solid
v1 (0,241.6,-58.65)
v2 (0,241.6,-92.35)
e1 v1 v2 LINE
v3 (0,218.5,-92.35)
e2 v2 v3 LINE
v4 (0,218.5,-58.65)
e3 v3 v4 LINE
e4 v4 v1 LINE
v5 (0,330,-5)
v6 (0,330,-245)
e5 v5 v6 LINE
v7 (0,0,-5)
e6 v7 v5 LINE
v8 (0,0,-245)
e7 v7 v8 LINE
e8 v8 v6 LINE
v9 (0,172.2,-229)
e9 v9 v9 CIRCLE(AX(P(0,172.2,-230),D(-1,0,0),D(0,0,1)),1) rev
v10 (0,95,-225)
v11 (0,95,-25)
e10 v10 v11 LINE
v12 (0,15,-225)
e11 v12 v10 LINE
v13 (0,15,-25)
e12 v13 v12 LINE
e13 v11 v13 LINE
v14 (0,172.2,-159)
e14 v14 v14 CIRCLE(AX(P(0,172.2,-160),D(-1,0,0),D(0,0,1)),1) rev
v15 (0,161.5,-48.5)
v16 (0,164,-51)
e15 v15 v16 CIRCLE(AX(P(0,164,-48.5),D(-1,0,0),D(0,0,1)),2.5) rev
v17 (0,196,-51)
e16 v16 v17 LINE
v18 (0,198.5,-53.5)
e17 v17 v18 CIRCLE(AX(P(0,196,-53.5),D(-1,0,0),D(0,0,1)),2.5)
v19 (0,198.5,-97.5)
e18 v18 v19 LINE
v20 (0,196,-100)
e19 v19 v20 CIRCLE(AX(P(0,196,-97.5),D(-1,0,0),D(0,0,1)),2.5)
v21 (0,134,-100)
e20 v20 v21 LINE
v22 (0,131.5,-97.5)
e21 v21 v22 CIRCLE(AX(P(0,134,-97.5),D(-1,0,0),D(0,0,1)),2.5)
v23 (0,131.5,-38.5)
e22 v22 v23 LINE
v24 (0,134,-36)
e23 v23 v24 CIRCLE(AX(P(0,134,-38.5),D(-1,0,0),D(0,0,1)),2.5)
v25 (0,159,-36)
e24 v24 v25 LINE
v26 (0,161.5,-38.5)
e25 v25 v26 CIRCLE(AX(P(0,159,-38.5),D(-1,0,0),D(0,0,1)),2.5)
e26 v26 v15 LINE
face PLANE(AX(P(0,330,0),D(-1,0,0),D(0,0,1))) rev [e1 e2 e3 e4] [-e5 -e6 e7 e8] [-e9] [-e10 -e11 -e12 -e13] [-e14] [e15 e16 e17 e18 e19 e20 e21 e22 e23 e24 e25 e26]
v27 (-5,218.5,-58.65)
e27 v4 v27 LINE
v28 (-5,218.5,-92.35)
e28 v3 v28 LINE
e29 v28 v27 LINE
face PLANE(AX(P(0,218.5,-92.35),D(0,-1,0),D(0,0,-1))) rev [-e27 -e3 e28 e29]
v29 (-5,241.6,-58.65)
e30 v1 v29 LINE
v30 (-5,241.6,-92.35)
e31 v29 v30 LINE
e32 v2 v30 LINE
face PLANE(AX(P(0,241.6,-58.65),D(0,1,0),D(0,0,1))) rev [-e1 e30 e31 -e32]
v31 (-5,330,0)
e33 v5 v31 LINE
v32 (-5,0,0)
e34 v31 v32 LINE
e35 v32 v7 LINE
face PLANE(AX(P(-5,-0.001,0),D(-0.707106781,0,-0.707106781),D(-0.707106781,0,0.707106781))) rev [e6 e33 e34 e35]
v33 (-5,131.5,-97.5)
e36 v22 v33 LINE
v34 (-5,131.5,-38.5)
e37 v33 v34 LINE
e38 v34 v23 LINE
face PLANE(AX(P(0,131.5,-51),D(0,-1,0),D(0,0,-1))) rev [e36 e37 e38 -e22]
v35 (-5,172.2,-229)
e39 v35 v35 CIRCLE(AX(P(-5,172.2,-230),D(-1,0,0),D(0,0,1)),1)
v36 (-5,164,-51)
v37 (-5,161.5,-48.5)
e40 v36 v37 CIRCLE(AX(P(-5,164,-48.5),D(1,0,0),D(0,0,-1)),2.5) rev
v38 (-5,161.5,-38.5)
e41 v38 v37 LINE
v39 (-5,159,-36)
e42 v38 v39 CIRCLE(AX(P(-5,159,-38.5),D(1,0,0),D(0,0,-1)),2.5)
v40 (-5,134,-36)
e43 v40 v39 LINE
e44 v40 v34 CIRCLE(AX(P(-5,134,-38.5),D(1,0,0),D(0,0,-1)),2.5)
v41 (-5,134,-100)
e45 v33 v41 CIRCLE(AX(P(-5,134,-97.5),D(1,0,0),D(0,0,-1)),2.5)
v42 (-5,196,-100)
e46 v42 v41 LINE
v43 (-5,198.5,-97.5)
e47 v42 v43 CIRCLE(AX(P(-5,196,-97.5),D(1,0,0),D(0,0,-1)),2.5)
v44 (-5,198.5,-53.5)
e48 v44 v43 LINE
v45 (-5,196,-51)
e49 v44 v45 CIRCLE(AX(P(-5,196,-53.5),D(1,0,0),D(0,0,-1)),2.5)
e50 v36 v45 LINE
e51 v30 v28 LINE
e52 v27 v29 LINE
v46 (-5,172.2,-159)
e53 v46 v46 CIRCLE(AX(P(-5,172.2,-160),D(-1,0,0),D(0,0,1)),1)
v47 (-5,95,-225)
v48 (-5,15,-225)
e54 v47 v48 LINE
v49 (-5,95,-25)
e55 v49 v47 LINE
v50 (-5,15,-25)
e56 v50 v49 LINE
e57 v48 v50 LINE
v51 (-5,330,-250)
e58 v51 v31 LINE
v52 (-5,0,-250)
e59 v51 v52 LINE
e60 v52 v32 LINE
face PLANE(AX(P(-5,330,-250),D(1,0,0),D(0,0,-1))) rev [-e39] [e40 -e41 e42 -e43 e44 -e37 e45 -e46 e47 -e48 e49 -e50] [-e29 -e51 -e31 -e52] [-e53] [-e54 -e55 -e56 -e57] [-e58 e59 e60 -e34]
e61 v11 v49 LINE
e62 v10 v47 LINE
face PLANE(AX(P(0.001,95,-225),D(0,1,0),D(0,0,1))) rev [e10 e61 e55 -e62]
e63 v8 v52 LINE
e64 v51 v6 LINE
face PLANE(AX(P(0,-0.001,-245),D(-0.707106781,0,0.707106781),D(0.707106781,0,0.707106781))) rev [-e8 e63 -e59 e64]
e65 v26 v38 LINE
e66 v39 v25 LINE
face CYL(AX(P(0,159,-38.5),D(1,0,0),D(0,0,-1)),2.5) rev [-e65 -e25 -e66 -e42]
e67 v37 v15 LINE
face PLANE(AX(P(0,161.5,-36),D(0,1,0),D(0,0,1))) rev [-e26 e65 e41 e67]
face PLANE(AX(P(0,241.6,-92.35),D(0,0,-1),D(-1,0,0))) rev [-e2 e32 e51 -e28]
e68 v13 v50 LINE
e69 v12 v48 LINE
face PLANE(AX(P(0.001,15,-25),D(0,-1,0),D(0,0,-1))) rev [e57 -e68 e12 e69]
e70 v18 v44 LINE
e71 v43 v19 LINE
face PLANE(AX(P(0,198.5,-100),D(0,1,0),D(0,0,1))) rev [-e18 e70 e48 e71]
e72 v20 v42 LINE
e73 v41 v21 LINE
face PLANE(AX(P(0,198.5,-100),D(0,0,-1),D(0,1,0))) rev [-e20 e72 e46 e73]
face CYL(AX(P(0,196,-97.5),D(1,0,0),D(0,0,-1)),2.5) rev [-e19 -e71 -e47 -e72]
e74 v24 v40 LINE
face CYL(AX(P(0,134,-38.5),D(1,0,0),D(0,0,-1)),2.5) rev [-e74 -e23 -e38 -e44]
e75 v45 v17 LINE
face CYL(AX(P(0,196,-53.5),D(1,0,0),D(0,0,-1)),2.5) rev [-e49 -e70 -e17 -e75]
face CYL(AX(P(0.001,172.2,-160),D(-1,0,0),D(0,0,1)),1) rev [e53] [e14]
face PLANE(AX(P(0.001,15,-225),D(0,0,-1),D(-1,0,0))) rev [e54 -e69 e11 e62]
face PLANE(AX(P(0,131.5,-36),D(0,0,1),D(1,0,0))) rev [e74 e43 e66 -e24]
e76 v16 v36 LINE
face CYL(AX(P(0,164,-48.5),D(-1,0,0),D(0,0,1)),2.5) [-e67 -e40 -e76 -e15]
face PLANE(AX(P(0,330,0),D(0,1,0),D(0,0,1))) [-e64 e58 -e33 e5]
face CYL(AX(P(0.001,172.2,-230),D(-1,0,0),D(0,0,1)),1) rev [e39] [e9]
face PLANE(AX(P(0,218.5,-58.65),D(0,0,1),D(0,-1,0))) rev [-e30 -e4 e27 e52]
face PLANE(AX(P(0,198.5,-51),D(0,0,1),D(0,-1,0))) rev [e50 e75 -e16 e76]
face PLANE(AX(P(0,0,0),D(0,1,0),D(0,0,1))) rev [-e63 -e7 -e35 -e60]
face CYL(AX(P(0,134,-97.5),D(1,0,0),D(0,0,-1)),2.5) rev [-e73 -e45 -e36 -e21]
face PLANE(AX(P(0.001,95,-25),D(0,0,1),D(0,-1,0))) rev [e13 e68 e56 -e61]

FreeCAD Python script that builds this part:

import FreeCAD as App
import Part
import Sketcher
Q = App.Units.Quantity


def edges_at(feature, points):
    """Names of the edges that pass closest to the given points."""
    edges = feature.Shape.Edges
    near = lambda p: min(range(len(edges)), key=lambda i: edges[i].distToShape(Part.Vertex(*p))[0])
    return sorted({f"Edge{near(p) + 1}" for p in points})

doc = App.newDocument("Part")
body = doc.addObject("PartDesign::Body", "Body")

sketch1 = body.newObject("Sketcher::SketchObject", "Sketch")
sketch1.AttachmentSupport = (doc.getObject("XZ_Plane"), [""])
sketch1.MapMode = "FlatFace"
sketch1.addGeometry(Part.LineSegment(App.Vector(-5, -250, 0), App.Vector(-5, 0, 0)), False)
sketch1.addGeometry(Part.LineSegment(App.Vector(-5, 0, 0), App.Vector(0, 0, 0)), False)
sketch1.addGeometry(Part.LineSegment(App.Vector(0, 0, 0), App.Vector(0, -250, 0)), False)
sketch1.addGeometry(Part.LineSegment(App.Vector(0, -250, 0), App.Vector(-5, -250, 0)), False)
sketch1.addConstraint(Sketcher.Constraint("Coincident", 0, 2, 1, 1))
sketch1.addConstraint(Sketcher.Constraint("Coincident", 1, 2, 2, 1))
sketch1.addConstraint(Sketcher.Constraint("Coincident", 2, 2, 3, 1))
sketch1.addConstraint(Sketcher.Constraint("Coincident", 3, 2, 0, 1))
sketch1.addConstraint(Sketcher.Constraint("Vertical", 0))
sketch1.addConstraint(Sketcher.Constraint("Horizontal", 1))
sketch1.addConstraint(Sketcher.Constraint("Vertical", 2))
sketch1.addConstraint(Sketcher.Constraint("Horizontal", 3))
sketch1.addConstraint(Sketcher.Constraint("Coincident", 1, 2, -1, 1))
sketch1.addConstraint(Sketcher.Constraint("DistanceX", 1, 1, 1, 2, Q("5 mm")))
sketch1.addConstraint(Sketcher.Constraint("DistanceY", 0, 1, 0, 2, Q("250 mm")))
pad1 = body.newObject("PartDesign::Pad", "Pad")
pad1.Profile = sketch1
pad1.Length = 330
pad1.Reversed = True

sketch2 = body.newObject("Sketcher::SketchObject", "Sketch001")
sketch2.AttachmentSupport = (doc.getObject("XZ_Plane"), [""])
sketch2.MapMode = "FlatFace"
sketch2.AttachmentOffset = App.Placement(App.Vector(0, 0, -330), App.Rotation())
sketch2.addGeometry(Part.LineSegment(App.Vector(0, -245, 0), App.Vector(0, -250, 0)), False)
sketch2.addGeometry(Part.LineSegment(App.Vector(0, -250, 0), App.Vector(-5, -250, 0)), False)
sketch2.addGeometry(Part.LineSegment(App.Vector(-5, -250, 0), App.Vector(0, -245, 0)), False)
sketch2.addConstraint(Sketcher.Constraint("Coincident", 0, 2, 1, 1))
sketch2.addConstraint(Sketcher.Constraint("Coincident", 1, 2, 2, 1))
sketch2.addConstraint(Sketcher.Constraint("Coincident", 2, 2, 0, 1))
sketch2.addConstraint(Sketcher.Constraint("Vertical", 0))
sketch2.addConstraint(Sketcher.Constraint("Horizontal", 1))
sketch2.addConstraint(Sketcher.Constraint("PointOnObject", 0, 2, -2))
sketch2.addConstraint(Sketcher.Constraint("Equal", 1, 0))
sketch2.addConstraint(Sketcher.Constraint("DistanceX", 1, 2, 1, 1, Q("5 mm")))
sketch2.addConstraint(Sketcher.Constraint("DistanceY", 0, 2, -1, 1, Q("250 mm")))
pocket1 = body.newObject("PartDesign::Pocket", "Pocket")
pocket1.Profile = sketch2
pocket1.Type = "UpToFirst"
pocket1.Reversed = True

sketch3 = body.newObject("Sketcher::SketchObject", "Sketch002")
sketch3.AttachmentSupport = (doc.getObject("XZ_Plane"), [""])
sketch3.MapMode = "FlatFace"
sketch3.AttachmentOffset = App.Placement(App.Vector(0, 0, -330), App.Rotation())
sketch3.addGeometry(Part.LineSegment(App.Vector(0, -5, 0), App.Vector(-5, 0, 0)), False)
sketch3.addGeometry(Part.LineSegment(App.Vector(-5, 0, 0), App.Vector(0, 0, 0)), False)
sketch3.addGeometry(Part.LineSegment(App.Vector(0, 0, 0), App.Vector(0, -5, 0)), False)
sketch3.addConstraint(Sketcher.Constraint("Coincident", 0, 2, 1, 1))
sketch3.addConstraint(Sketcher.Constraint("Coincident", 1, 2, 2, 1))
sketch3.addConstraint(Sketcher.Constraint("Coincident", 2, 2, 0, 1))
sketch3.addConstraint(Sketcher.Constraint("Horizontal", 1))
sketch3.addConstraint(Sketcher.Constraint("Vertical", 2))
sketch3.addConstraint(Sketcher.Constraint("Coincident", 1, 2, -1, 1))
sketch3.addConstraint(Sketcher.Constraint("Equal", 1, 2))
sketch3.addConstraint(Sketcher.Constraint("DistanceX", 1, 1, 1, 2, Q("5 mm")))
pocket2 = body.newObject("PartDesign::Pocket", "Pocket001")
pocket2.Profile = sketch3
pocket2.Type = "UpToFirst"
pocket2.Reversed = True

sketch4 = body.newObject("Sketcher::SketchObject", "Sketch003")
sketch4.AttachmentSupport = (doc.getObject("YZ_Plane"), [""])
sketch4.MapMode = "FlatFace"
sketch4.AttachmentOffset = App.Placement(App.Vector(0, 0, -5), App.Rotation())
sketch4.addGeometry(Part.LineSegment(App.Vector(95, -225, 0), App.Vector(15, -225, 0)), False)
sketch4.addGeometry(Part.LineSegment(App.Vector(15, -225, 0), App.Vector(15, -25, 0)), False)
sketch4.addGeometry(Part.LineSegment(App.Vector(15, -25, 0), App.Vector(95, -25, 0)), False)
sketch4.addGeometry(Part.LineSegment(App.Vector(95, -25, 0), App.Vector(95, -225, 0)), False)
sketch4.addConstraint(Sketcher.Constraint("Coincident", 0, 2, 1, 1))
sketch4.addConstraint(Sketcher.Constraint("Coincident", 1, 2, 2, 1))
sketch4.addConstraint(Sketcher.Constraint("Coincident", 2, 2, 3, 1))
sketch4.addConstraint(Sketcher.Constraint("Coincident", 3, 2, 0, 1))
sketch4.addConstraint(Sketcher.Constraint("Horizontal", 0))
sketch4.addConstraint(Sketcher.Constraint("Vertical", 1))
sketch4.addConstraint(Sketcher.Constraint("Horizontal", 2))
sketch4.addConstraint(Sketcher.Constraint("Vertical", 3))
sketch4.addConstraint(Sketcher.Constraint("DistanceX", 0, 2, 0, 1, Q("80 mm")))
sketch4.addConstraint(Sketcher.Constraint("DistanceY", 1, 1, 1, 2, Q("200 mm")))
sketch4.addConstraint(Sketcher.Constraint("DistanceX", -1, 1, 0, 2, Q("15 mm")))
sketch4.addConstraint(Sketcher.Constraint("DistanceY", 0, 2, -1, 1, Q("225 mm")))
pocket3 = body.newObject("PartDesign::Pocket", "Pocket002")
pocket3.Profile = sketch4
pocket3.Type = "UpToFirst"
pocket3.Reversed = True

sketch5 = body.newObject("Sketcher::SketchObject", "Sketch004")
sketch5.AttachmentSupport = (doc.getObject("YZ_Plane"), [""])
sketch5.MapMode = "FlatFace"
sketch5.AttachmentOffset = App.Placement(App.Vector(0, 0, -5), App.Rotation())
sketch5.addGeometry(Part.LineSegment(App.Vector(198, -100, 0), App.Vector(132, -100, 0)), False)
sketch5.addGeometry(Part.LineSegment(App.Vector(132, -100, 0), App.Vector(132, -36, 0)), False)
sketch5.addGeometry(Part.LineSegment(App.Vector(132, -36, 0), App.Vector(162, -36, 0)), False)
sketch5.addGeometry(Part.LineSegment(App.Vector(162, -36, 0), App.Vector(162, -51, 0)), False)
sketch5.addGeometry(Part.LineSegment(App.Vector(162, -51, 0), App.Vector(198, -51, 0)), False)
sketch5.addGeometry(Part.LineSegment(App.Vector(198, -51, 0), App.Vector(198, -100, 0)), False)
sketch5.addConstraint(Sketcher.Constraint("Coincident", 0, 2, 1, 1))
sketch5.addConstraint(Sketcher.Constraint("Coincident", 1, 2, 2, 1))
sketch5.addConstraint(Sketcher.Constraint("Coincident", 2, 2, 3, 1))
sketch5.addConstraint(Sketcher.Constraint("Coincident", 3, 2, 4, 1))
sketch5.addConstraint(Sketcher.Constraint("Coincident", 4, 2, 5, 1))
sketch5.addConstraint(Sketcher.Constraint("Coincident", 5, 2, 0, 1))
sketch5.addConstraint(Sketcher.Constraint("Horizontal", 0))
sketch5.addConstraint(Sketcher.Constraint("Vertical", 1))
sketch5.addConstraint(Sketcher.Constraint("Horizontal", 2))
sketch5.addConstraint(Sketcher.Constraint("Vertical", 3))
sketch5.addConstraint(Sketcher.Constraint("Horizontal", 4))
sketch5.addConstraint(Sketcher.Constraint("Vertical", 5))
sketch5.addConstraint(Sketcher.Constraint("DistanceX", 0, 2, 0, 1, Q("67 mm")))
sketch5.addConstraint(Sketcher.Constraint("DistanceX", 2, 1, 2, 2, Q("30 mm")))
sketch5.addConstraint(Sketcher.Constraint("DistanceY", 1, 1, 1, 2, Q("64 mm")))
sketch5.addConstraint(Sketcher.Constraint("DistanceY", 3, 2, 3, 1, Q("15 mm")))
sketch5.addConstraint(Sketcher.Constraint("DistanceY", 0, 2, -1, 1, Q("100 mm")))
sketch5.addConstraint(Sketcher.Constraint("DistanceX", -1, 1, 0, 2, Q("131.5 mm")))
pocket4 = body.newObject("PartDesign::Pocket", "Pocket003")
pocket4.Profile = sketch5
pocket4.Type = "ThroughAll"
pocket4.Reversed = True
doc.recompute()

fillet = body.newObject("PartDesign::Fillet", "Fillet")
fillet.Base = (pocket4, edges_at(pocket4, [
    (-2.5, 131.5, -100),
    (-2.5, 198.5, -100),
    (-2.5, 198.5, -51),
    (-2.5, 161.5, -51),
    (-2.5, 161.5, -36),
    (-2.5, 131.5, -36),
]))
fillet.Radius = 2.5

sketch6 = body.newObject("Sketcher::SketchObject", "Sketch005")
sketch6.AttachmentSupport = (doc.getObject("YZ_Plane"), [""])
sketch6.MapMode = "FlatFace"
sketch6.AttachmentOffset = App.Placement(App.Vector(0, 0, -5), App.Rotation())
sketch6.addGeometry(Part.LineSegment(App.Vector(242, -92, 0), App.Vector(218, -92, 0)), False)
sketch6.addGeometry(Part.LineSegment(App.Vector(218, -92, 0), App.Vector(218, -59, 0)), False)
sketch6.addGeometry(Part.LineSegment(App.Vector(218, -59, 0), App.Vector(242, -59, 0)), False)
sketch6.addGeometry(Part.LineSegment(App.Vector(242, -59, 0), App.Vector(242, -92, 0)), False)
sketch6.addConstraint(Sketcher.Constraint("Coincident", 0, 2, 1, 1))
sketch6.addConstraint(Sketcher.Constraint("Coincident", 1, 2, 2, 1))
sketch6.addConstraint(Sketcher.Constraint("Coincident", 2, 2, 3, 1))
sketch6.addConstraint(Sketcher.Constraint("Coincident", 3, 2, 0, 1))
sketch6.addConstraint(Sketcher.Constraint("Horizontal", 0))
sketch6.addConstraint(Sketcher.Constraint("Vertical", 1))
sketch6.addConstraint(Sketcher.Constraint("Horizontal", 2))
sketch6.addConstraint(Sketcher.Constraint("Vertical", 3))
sketch6.addConstraint(Sketcher.Constraint("DistanceX", 0, 2, 0, 1, Q("23.1 mm")))
sketch6.addConstraint(Sketcher.Constraint("DistanceY", 1, 1, 1, 2, Q("33.7 mm")))
sketch6.addConstraint(Sketcher.Constraint("DistanceX", -1, 1, 0, 2, Q("218.5 mm")))
sketch6.addConstraint(Sketcher.Constraint("DistanceY", 0, 2, -1, 1, Q("92.35 mm")))
pocket5 = body.newObject("PartDesign::Pocket", "Pocket004")
pocket5.Profile = sketch6
pocket5.Type = "ThroughAll"
pocket5.Reversed = True

sketch7 = body.newObject("Sketcher::SketchObject", "Sketch006")
sketch7.AttachmentSupport = (doc.getObject("YZ_Plane"), [""])
sketch7.MapMode = "FlatFace"
sketch7.AttachmentOffset = App.Placement(App.Vector(0, 0, -5), App.Rotation())
sketch7.addGeometry(Part.Circle(App.Vector(172.2, -230, 0), App.Vector(0, 0, 1), 1), False)
sketch7.addConstraint(Sketcher.Constraint("Diameter", 0, Q("2 mm")))
sketch7.addConstraint(Sketcher.Constraint("DistanceY", 0, 3, -1, 1, Q("230 mm")))
sketch7.addConstraint(Sketcher.Constraint("DistanceX", -1, 1, 0, 3, Q("172.2 mm")))
pocket6 = body.newObject("PartDesign::Pocket", "Pocket005")
pocket6.Profile = sketch7
pocket6.Type = "UpToFirst"
pocket6.Reversed = True

sketch8 = body.newObject("Sketcher::SketchObject", "Sketch007")
sketch8.AttachmentSupport = (doc.getObject("YZ_Plane"), [""])
sketch8.MapMode = "FlatFace"
sketch8.AttachmentOffset = App.Placement(App.Vector(0, 0, -5), App.Rotation())
sketch8.addGeometry(Part.Circle(App.Vector(172.2, -160, 0), App.Vector(0, 0, 1), 1), False)
sketch8.addConstraint(Sketcher.Constraint("Diameter", 0, Q("2 mm")))
sketch8.addConstraint(Sketcher.Constraint("DistanceY", 0, 3, -1, 1, Q("160 mm")))
sketch8.addConstraint(Sketcher.Constraint("DistanceX", -1, 1, 0, 3, Q("172.2 mm")))
pocket7 = body.newObject("PartDesign::Pocket", "Pocket006")
pocket7.Profile = sketch8
pocket7.Type = "UpToFirst"
pocket7.Reversed = True

doc.recompute()
